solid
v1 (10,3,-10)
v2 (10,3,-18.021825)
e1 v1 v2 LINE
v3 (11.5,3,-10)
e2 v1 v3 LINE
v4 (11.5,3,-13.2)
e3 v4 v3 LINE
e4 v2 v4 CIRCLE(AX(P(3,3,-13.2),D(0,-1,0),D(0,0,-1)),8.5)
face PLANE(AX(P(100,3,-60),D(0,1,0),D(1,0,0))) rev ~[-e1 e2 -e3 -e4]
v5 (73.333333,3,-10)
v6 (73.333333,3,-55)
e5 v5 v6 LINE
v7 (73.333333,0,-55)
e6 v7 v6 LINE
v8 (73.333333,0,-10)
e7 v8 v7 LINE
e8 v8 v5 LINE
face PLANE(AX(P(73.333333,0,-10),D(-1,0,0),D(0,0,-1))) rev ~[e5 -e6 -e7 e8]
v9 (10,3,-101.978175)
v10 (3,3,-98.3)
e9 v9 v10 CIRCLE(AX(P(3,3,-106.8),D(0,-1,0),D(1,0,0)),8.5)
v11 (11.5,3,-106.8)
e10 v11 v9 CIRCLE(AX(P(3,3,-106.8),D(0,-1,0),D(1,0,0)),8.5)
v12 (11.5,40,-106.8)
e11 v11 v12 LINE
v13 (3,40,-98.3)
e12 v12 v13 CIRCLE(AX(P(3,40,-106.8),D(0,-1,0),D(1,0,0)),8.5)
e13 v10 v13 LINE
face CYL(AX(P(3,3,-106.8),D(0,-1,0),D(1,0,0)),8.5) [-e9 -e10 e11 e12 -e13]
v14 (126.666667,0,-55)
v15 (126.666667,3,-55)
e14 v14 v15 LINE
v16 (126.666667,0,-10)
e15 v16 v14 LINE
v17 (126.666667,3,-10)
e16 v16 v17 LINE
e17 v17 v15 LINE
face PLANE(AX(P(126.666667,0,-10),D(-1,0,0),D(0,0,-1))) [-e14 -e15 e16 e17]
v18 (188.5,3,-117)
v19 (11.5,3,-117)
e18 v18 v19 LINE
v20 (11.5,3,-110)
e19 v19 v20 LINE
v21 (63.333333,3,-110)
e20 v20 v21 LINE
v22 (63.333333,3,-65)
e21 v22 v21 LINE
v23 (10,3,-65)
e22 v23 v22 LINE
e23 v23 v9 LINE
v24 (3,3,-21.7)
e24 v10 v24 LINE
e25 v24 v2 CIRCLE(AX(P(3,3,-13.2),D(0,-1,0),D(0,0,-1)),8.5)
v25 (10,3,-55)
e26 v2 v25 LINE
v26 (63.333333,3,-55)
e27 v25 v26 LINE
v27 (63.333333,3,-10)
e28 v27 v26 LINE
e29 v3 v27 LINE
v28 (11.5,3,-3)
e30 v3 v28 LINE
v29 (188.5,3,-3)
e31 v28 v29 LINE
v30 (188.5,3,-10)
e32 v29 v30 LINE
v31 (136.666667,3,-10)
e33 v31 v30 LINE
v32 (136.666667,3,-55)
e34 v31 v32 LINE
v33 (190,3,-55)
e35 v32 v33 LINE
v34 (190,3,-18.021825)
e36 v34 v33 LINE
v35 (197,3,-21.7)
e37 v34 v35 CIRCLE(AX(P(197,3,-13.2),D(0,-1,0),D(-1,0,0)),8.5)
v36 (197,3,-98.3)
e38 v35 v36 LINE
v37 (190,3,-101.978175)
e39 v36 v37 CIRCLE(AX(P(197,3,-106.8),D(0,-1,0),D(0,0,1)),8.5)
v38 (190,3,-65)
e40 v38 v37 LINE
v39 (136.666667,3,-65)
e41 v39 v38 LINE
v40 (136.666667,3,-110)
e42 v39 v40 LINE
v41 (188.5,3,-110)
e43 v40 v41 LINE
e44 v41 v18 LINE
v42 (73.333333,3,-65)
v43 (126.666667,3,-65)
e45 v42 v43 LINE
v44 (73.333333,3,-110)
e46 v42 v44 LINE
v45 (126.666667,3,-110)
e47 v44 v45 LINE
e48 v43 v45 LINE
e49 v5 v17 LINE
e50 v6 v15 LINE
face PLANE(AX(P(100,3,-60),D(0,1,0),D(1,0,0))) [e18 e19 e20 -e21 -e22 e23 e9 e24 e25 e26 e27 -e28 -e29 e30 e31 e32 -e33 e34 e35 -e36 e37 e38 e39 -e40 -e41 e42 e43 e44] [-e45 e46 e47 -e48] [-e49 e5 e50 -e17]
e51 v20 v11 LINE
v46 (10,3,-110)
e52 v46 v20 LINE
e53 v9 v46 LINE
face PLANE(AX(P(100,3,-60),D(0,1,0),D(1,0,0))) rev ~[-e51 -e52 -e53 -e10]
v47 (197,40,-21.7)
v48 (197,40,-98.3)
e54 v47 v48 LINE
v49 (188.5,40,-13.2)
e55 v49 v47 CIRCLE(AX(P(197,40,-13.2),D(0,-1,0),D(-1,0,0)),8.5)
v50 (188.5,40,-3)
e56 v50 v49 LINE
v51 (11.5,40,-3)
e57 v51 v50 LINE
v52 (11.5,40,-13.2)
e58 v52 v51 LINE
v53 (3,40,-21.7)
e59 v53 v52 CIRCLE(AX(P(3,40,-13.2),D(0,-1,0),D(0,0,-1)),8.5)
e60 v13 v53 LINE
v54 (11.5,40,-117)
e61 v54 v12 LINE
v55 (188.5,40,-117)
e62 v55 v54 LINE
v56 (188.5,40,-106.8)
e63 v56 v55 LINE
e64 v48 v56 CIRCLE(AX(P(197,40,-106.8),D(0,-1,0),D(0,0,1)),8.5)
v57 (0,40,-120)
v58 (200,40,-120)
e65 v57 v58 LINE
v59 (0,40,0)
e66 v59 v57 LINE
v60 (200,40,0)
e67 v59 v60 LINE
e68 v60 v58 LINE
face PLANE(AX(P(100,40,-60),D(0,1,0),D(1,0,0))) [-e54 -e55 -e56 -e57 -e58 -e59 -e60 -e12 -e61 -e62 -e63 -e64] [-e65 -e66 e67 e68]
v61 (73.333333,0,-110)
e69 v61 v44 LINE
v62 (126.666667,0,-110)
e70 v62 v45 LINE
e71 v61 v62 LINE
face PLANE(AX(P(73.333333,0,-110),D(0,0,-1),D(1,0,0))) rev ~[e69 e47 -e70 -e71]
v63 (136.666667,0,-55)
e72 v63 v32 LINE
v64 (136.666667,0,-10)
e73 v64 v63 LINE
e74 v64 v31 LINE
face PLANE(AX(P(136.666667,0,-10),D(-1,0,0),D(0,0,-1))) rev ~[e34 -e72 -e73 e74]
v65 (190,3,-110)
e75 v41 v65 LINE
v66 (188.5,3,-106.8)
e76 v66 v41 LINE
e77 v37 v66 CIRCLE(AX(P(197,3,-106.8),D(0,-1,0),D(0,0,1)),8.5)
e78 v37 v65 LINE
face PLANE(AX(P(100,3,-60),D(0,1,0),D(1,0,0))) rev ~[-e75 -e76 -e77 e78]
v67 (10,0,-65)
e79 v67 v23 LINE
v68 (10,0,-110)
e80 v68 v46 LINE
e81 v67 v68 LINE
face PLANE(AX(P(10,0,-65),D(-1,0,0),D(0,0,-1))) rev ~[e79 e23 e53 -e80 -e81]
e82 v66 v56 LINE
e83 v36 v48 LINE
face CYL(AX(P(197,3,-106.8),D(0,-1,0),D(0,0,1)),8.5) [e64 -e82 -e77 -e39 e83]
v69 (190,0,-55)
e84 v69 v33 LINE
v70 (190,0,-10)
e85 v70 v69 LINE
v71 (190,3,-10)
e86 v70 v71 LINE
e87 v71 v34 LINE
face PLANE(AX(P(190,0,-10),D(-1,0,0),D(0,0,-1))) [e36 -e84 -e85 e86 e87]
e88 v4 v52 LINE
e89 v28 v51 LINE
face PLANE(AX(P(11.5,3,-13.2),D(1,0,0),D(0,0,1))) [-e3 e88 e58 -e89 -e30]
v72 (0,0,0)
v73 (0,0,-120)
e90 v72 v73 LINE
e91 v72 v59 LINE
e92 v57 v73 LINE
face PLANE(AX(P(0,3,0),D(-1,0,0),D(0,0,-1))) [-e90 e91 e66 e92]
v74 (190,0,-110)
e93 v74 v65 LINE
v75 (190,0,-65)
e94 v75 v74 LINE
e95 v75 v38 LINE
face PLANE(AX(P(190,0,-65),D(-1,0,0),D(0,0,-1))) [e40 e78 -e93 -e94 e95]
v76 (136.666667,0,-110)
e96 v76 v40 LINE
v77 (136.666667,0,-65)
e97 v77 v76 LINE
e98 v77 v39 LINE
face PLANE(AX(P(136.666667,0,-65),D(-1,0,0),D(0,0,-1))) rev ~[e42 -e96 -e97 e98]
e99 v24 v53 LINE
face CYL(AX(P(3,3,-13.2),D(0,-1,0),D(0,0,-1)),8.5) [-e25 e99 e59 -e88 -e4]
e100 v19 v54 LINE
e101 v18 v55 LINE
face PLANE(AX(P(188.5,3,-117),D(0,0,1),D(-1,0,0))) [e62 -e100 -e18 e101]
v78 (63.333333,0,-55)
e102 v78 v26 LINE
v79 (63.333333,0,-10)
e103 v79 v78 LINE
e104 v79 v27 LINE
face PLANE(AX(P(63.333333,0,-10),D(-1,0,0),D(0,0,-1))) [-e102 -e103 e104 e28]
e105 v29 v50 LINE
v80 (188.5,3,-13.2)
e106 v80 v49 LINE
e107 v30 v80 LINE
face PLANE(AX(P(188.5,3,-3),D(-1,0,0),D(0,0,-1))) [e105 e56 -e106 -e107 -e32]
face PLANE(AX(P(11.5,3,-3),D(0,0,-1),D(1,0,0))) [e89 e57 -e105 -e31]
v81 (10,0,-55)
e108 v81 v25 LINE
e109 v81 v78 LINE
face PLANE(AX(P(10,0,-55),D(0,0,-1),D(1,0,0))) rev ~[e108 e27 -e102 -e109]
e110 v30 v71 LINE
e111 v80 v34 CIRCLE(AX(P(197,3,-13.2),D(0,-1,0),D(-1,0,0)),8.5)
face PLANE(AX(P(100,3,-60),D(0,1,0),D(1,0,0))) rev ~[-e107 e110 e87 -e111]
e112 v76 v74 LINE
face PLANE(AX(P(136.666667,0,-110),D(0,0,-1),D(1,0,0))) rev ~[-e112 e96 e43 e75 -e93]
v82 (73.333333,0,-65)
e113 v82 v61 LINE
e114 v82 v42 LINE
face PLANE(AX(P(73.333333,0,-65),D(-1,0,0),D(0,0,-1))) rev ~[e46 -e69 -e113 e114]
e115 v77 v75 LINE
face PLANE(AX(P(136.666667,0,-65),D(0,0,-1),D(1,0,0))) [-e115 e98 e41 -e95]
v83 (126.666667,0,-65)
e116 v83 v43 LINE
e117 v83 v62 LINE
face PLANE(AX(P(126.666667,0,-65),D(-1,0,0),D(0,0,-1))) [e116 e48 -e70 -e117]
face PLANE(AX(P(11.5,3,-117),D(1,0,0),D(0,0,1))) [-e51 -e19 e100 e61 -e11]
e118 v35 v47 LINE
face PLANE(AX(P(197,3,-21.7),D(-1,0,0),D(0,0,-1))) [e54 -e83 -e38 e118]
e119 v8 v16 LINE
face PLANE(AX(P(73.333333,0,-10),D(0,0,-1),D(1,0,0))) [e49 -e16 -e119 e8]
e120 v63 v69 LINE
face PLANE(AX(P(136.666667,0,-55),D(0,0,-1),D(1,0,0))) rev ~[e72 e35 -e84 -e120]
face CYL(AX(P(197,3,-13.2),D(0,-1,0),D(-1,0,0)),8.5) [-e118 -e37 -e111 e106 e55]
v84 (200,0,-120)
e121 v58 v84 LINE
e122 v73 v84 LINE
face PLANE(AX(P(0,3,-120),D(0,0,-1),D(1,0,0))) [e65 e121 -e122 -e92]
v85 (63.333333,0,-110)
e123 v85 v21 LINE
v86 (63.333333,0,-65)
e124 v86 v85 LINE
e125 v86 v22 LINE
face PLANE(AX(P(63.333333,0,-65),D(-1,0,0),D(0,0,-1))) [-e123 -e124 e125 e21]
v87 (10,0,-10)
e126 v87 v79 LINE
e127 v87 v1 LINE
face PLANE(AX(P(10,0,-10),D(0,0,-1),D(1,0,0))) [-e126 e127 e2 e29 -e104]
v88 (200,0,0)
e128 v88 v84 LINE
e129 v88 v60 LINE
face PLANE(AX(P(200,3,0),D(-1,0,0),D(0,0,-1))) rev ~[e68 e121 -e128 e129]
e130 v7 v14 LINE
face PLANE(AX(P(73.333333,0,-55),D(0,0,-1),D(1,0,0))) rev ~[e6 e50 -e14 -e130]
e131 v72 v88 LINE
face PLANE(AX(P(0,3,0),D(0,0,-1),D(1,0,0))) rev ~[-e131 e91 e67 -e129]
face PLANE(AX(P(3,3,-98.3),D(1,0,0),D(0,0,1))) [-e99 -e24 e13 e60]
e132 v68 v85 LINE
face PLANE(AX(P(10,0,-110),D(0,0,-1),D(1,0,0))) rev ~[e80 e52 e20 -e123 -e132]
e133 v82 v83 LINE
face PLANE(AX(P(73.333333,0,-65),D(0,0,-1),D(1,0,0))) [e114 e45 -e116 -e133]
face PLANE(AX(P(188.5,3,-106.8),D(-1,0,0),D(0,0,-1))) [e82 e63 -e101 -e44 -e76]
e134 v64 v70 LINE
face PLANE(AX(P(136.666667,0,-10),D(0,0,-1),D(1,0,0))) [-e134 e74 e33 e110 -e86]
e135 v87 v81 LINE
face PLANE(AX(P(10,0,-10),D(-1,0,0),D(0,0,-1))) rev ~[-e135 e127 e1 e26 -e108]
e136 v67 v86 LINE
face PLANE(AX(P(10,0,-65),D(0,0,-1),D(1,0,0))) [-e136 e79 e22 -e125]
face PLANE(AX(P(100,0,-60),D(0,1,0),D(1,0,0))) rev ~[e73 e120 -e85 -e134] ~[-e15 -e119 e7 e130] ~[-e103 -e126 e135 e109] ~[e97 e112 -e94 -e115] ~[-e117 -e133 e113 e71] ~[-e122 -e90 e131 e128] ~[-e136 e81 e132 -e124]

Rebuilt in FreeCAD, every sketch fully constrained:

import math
import FreeCAD as App
import Part
import Sketcher

doc = App.newDocument("Part")
params = doc.addObject("Spreadsheet::Sheet", "Params")
for row, (alias, value) in enumerate([
    ("sketch1_width", "200 mm"),
    ("sketch1_height", "120 mm"),
    ("sketch1_height2", "45 mm"),
    ("pad1_length", "3 mm"),
    ("sketch2_radius", "8.5 mm"),
    ("sketch2_width", "200 mm"),
    ("sketch2_width2", "177 mm"),
    ("sketch2_height", "120 mm"),
    ("sketch2_height2", "76.6 mm"),
    ("pad2_length", "37 mm"),
], start=1):
    params.set(f"A{row}", alias)
    params.set(f"B{row}", "=" + value)
    params.setAlias(f"B{row}", alias)

body = doc.addObject("PartDesign::Body", "Body")

# Sketch on XZ plane
sketch1 = body.newObject("Sketcher::SketchObject", "Sketch")
sketch1.AttachmentSupport = (doc.getObject("XZ_Plane"), [""])
sketch1.MapMode = "FlatFace"
sketch1.addGeometry([
    Part.LineSegment(App.Vector(0, -120, 0), App.Vector(0, 0, 0)),  # 0
    Part.LineSegment(App.Vector(0, 0, 0), App.Vector(200, 0, 0)),  # 1
    Part.LineSegment(App.Vector(200, 0, 0), App.Vector(200, -120, 0)),  # 2
    Part.LineSegment(App.Vector(200, -120, 0), App.Vector(0, -120, 0)),  # 3
    Part.LineSegment(App.Vector(63.333333, -10, 0), App.Vector(10, -10, 0)),  # 4
    Part.LineSegment(App.Vector(10, -10, 0), App.Vector(10, -55, 0)),  # 5
    Part.LineSegment(App.Vector(10, -55, 0), App.Vector(63.333333, -55, 0)),  # 6
    Part.LineSegment(App.Vector(63.333333, -55, 0), App.Vector(63.333333, -10, 0)),  # 7
    Part.LineSegment(App.Vector(126.666667, -10, 0), App.Vector(73.333333, -10, 0)),  # 8
    Part.LineSegment(App.Vector(73.333333, -10, 0), App.Vector(73.333333, -55, 0)),  # 9
    Part.LineSegment(App.Vector(73.333333, -55, 0), App.Vector(126.666667, -55, 0)),  # 10
    Part.LineSegment(App.Vector(126.666667, -55, 0), App.Vector(126.666667, -10, 0)),  # 11
    Part.LineSegment(App.Vector(190, -10, 0), App.Vector(136.666667, -10, 0)),  # 12
    Part.LineSegment(App.Vector(136.666667, -10, 0), App.Vector(136.666667, -55, 0)),  # 13
    Part.LineSegment(App.Vector(136.666667, -55, 0), App.Vector(190, -55, 0)),  # 14
    Part.LineSegment(App.Vector(190, -55, 0), App.Vector(190, -10, 0)),  # 15
    Part.LineSegment(App.Vector(63.333333, -65, 0), App.Vector(10, -65, 0)),  # 16
    Part.LineSegment(App.Vector(10, -65, 0), App.Vector(10, -110, 0)),  # 17
    Part.LineSegment(App.Vector(10, -110, 0), App.Vector(63.333333, -110, 0)),  # 18
    Part.LineSegment(App.Vector(63.333333, -110, 0), App.Vector(63.333333, -65, 0)),  # 19
    Part.LineSegment(App.Vector(126.666667, -65, 0), App.Vector(73.333333, -65, 0)),  # 20
    Part.LineSegment(App.Vector(73.333333, -65, 0), App.Vector(73.333333, -110, 0)),  # 21
    Part.LineSegment(App.Vector(73.333333, -110, 0), App.Vector(126.666667, -110, 0)),  # 22
    Part.LineSegment(App.Vector(126.666667, -110, 0), App.Vector(126.666667, -65, 0)),  # 23
    Part.LineSegment(App.Vector(190, -65, 0), App.Vector(136.666667, -65, 0)),  # 24
    Part.LineSegment(App.Vector(136.666667, -65, 0), App.Vector(136.666667, -110, 0)),  # 25
    Part.LineSegment(App.Vector(136.666667, -110, 0), App.Vector(190, -110, 0)),  # 26
    Part.LineSegment(App.Vector(190, -110, 0), App.Vector(190, -65, 0)),  # 27
], False)
sketch1.addConstraint([
    Sketcher.Constraint("Coincident", 0, 2, 1, 1),
    Sketcher.Constraint("Coincident", 1, 2, 2, 1),
    Sketcher.Constraint("Coincident", 2, 2, 3, 1),
    Sketcher.Constraint("Coincident", 3, 2, 0, 1),
    Sketcher.Constraint("Coincident", 4, 2, 5, 1),
    Sketcher.Constraint("Coincident", 5, 2, 6, 1),
    Sketcher.Constraint("Coincident", 6, 2, 7, 1),
    Sketcher.Constraint("Coincident", 7, 2, 4, 1),
    Sketcher.Constraint("Coincident", 8, 2, 9, 1),
    Sketcher.Constraint("Coincident", 9, 2, 10, 1),
    Sketcher.Constraint("Coincident", 10, 2, 11, 1),
    Sketcher.Constraint("Coincident", 11, 2, 8, 1),
    Sketcher.Constraint("Coincident", 12, 2, 13, 1),
    Sketcher.Constraint("Coincident", 13, 2, 14, 1),
    Sketcher.Constraint("Coincident", 14, 2, 15, 1),
    Sketcher.Constraint("Coincident", 15, 2, 12, 1),
    Sketcher.Constraint("Coincident", 16, 2, 17, 1),
    Sketcher.Constraint("Coincident", 17, 2, 18, 1),
    Sketcher.Constraint("Coincident", 18, 2, 19, 1),
    Sketcher.Constraint("Coincident", 19, 2, 16, 1),
    Sketcher.Constraint("Coincident", 20, 2, 21, 1),
    Sketcher.Constraint("Coincident", 21, 2, 22, 1),
    Sketcher.Constraint("Coincident", 22, 2, 23, 1),
    Sketcher.Constraint("Coincident", 23, 2, 20, 1),
    Sketcher.Constraint("Coincident", 24, 2, 25, 1),
    Sketcher.Constraint("Coincident", 25, 2, 26, 1),
    Sketcher.Constraint("Coincident", 26, 2, 27, 1),
    Sketcher.Constraint("Coincident", 27, 2, 24, 1),
    Sketcher.Constraint("Vertical", 0),
    Sketcher.Constraint("Horizontal", 1),
    Sketcher.Constraint("Vertical", 2),
    Sketcher.Constraint("Horizontal", 3),
    Sketcher.Constraint("Horizontal", 4),
    Sketcher.Constraint("Vertical", 5),
    Sketcher.Constraint("Horizontal", 6),
    Sketcher.Constraint("Vertical", 7),
    Sketcher.Constraint("Horizontal", 8),
    Sketcher.Constraint("Vertical", 9),
    Sketcher.Constraint("Horizontal", 10),
    Sketcher.Constraint("Vertical", 11),
    Sketcher.Constraint("Horizontal", 12),
    Sketcher.Constraint("Vertical", 13),
    Sketcher.Constraint("Horizontal", 14),
    Sketcher.Constraint("Vertical", 15),
    Sketcher.Constraint("Horizontal", 16),
    Sketcher.Constraint("Vertical", 17),
    Sketcher.Constraint("Horizontal", 18),
    Sketcher.Constraint("Vertical", 19),
    Sketcher.Constraint("Horizontal", 20),
    Sketcher.Constraint("Vertical", 21),
    Sketcher.Constraint("Horizontal", 22),
    Sketcher.Constraint("Vertical", 23),
    Sketcher.Constraint("Horizontal", 24),
    Sketcher.Constraint("Vertical", 25),
    Sketcher.Constraint("Horizontal", 26),
    Sketcher.Constraint("Vertical", 27),
    Sketcher.Constraint("Coincident", 0, 2, -1, 1),
    Sketcher.Constraint("Horizontal", 7, 2, 8, 2),
    Sketcher.Constraint("Horizontal", 6, 2, 9, 2),
    Sketcher.Constraint("Horizontal", 11, 2, 12, 2),
    Sketcher.Constraint("Horizontal", 10, 2, 13, 2),
    Sketcher.Constraint("Horizontal", 19, 2, 20, 2),
    Sketcher.Constraint("Horizontal", 18, 2, 21, 2),
    Sketcher.Constraint("Horizontal", 23, 2, 24, 2),
    Sketcher.Constraint("Horizontal", 22, 2, 25, 2),
    Sketcher.Constraint("Vertical", 5, 2, 16, 2),
    Sketcher.Constraint("Vertical", 7, 2, 18, 2),
    Sketcher.Constraint("Vertical", 9, 2, 20, 2),
    Sketcher.Constraint("Vertical", 11, 2, 22, 2),
    Sketcher.Constraint("Vertical", 13, 2, 24, 2),
    Sketcher.Constraint("Vertical", 15, 2, 26, 2),
    Sketcher.Constraint("Equal", 6, 8),
    Sketcher.Constraint("Equal", 10, 12),
    Sketcher.Constraint("Equal", 15, 17),
    Sketcher.Constraint("DistanceX", 1, 1, 1, 2, 200.0),
    Sketcher.Constraint("DistanceY", 0, 1, 0, 2, 120.0),
    Sketcher.Constraint("DistanceY", 5, 2, 5, 1, 45.0),
    Sketcher.Constraint("DistanceX", -1, 1, 4, 2, 10.0),
    Sketcher.Constraint("DistanceY", 4, 2, -1, 1, 10.0),
    Sketcher.Constraint("DistanceX", -1, 1, 14, 2, 190.0),
    Sketcher.Constraint("DistanceY", 16, 2, -1, 1, 65.0),
    Sketcher.Constraint("DistanceX", 7, 2, 8, 2, 10.0),
    Sketcher.Constraint("DistanceX", 11, 2, 12, 2, 10.0),
])
sketch1.setExpression("Constraints[74]", "Params.sketch1_width")
sketch1.setExpression("Constraints[75]", "Params.sketch1_height")
sketch1.setExpression("Constraints[76]", "Params.sketch1_height2")
pad1 = body.newObject("PartDesign::Pad", "Pad")
pad1.Profile = sketch1
pad1.setExpression("Length", "Params.pad1_length")
pad1.Reversed = True

# Sketch on XZ plane
sketch2 = body.newObject("Sketcher::SketchObject", "Sketch001")
sketch2.AttachmentSupport = (doc.getObject("XZ_Plane"), [""])
sketch2.MapMode = "FlatFace"
sketch2.AttachmentOffset = App.Placement(App.Vector(0, 0, -3), App.Rotation())
sketch2.addGeometry([
    Part.LineSegment(App.Vector(0, -120, 0), App.Vector(0, 0, 0)),  # 0
    Part.LineSegment(App.Vector(0, 0, 0), App.Vector(200, 0, 0)),  # 1
    Part.LineSegment(App.Vector(200, 0, 0), App.Vector(200, -120, 0)),  # 2
    Part.LineSegment(App.Vector(200, -120, 0), App.Vector(0, -120, 0)),  # 3
    Part.LineSegment(App.Vector(3, -21.7, 0), App.Vector(3, -98.3, 0)),  # 4
    Part.ArcOfCircle(Part.Circle(App.Vector(3, -106.8, 0), App.Vector(0, 0, 1), 8.5), math.radians(0), math.radians(90)),  # 5
    Part.LineSegment(App.Vector(11.5, -106.8, 0), App.Vector(11.5, -117, 0)),  # 6
    Part.LineSegment(App.Vector(11.5, -117, 0), App.Vector(188.5, -117, 0)),  # 7
    Part.LineSegment(App.Vector(188.5, -117, 0), App.Vector(188.5, -106.8, 0)),  # 8
    Part.ArcOfCircle(Part.Circle(App.Vector(197, -106.8, 0), App.Vector(0, 0, 1), 8.5), math.radians(90), math.radians(180)),  # 9
    Part.LineSegment(App.Vector(197, -98.3, 0), App.Vector(197, -21.7, 0)),  # 10
    Part.ArcOfCircle(Part.Circle(App.Vector(197, -13.2, 0), App.Vector(0, 0, 1), 8.5), math.radians(180), math.radians(270)),  # 11
    Part.LineSegment(App.Vector(188.5, -13.2, 0), App.Vector(188.5, -3, 0)),  # 12
    Part.LineSegment(App.Vector(188.5, -3, 0), App.Vector(11.5, -3, 0)),  # 13
    Part.LineSegment(App.Vector(11.5, -3, 0), App.Vector(11.5, -13.2, 0)),  # 14
    Part.ArcOfCircle(Part.Circle(App.Vector(3, -13.2, 0), App.Vector(0, 0, 1), 8.5), math.radians(-90), math.radians(0)),  # 15
], False)
sketch2.addConstraint([
    Sketcher.Constraint("Coincident", 0, 2, 1, 1),
    Sketcher.Constraint("Coincident", 1, 2, 2, 1),
    Sketcher.Constraint("Coincident", 2, 2, 3, 1),
    Sketcher.Constraint("Coincident", 3, 2, 0, 1),
    Sketcher.Constraint("Coincident", 4, 2, 5, 2),
    Sketcher.Constraint("Tangent", 5, 1, 6, 1),
    Sketcher.Constraint("Coincident", 6, 2, 7, 1),
    Sketcher.Constraint("Coincident", 7, 2, 8, 1),
    Sketcher.Constraint("Tangent", 8, 2, 9, 2),
    Sketcher.Constraint("Coincident", 9, 1, 10, 1),
    Sketcher.Constraint("Coincident", 10, 2, 11, 2),
    Sketcher.Constraint("Tangent", 11, 1, 12, 1),
    Sketcher.Constraint("Coincident", 12, 2, 13, 1),
    Sketcher.Constraint("Coincident", 13, 2, 14, 1),
    Sketcher.Constraint("Tangent", 14, 2, 15, 2),
    Sketcher.Constraint("Coincident", 15, 1, 4, 1),
    Sketcher.Constraint("Vertical", 0),
    Sketcher.Constraint("Horizontal", 1),
    Sketcher.Constraint("Vertical", 2),
    Sketcher.Constraint("Horizontal", 3),
    Sketcher.Constraint("Vertical", 4),
    Sketcher.Constraint("Vertical", 6),
    Sketcher.Constraint("Horizontal", 7),
    Sketcher.Constraint("Vertical", 8),
    Sketcher.Constraint("Vertical", 10),
    Sketcher.Constraint("Vertical", 12),
    Sketcher.Constraint("Horizontal", 13),
    Sketcher.Constraint("Vertical", 14),
    Sketcher.Constraint("Coincident", 0, 2, -1, 1),
    Sketcher.Constraint("Equal", 5, 9),
    Sketcher.Constraint("Equal", 9, 11),
    Sketcher.Constraint("Equal", 11, 15),
    Sketcher.Constraint("Horizontal", 5, 3, 9, 3),
    Sketcher.Constraint("Horizontal", 11, 3, 15, 3),
    Sketcher.Constraint("Vertical", 9, 3, 11, 3),
    Sketcher.Constraint("Vertical", 5, 3, 15, 3),
    Sketcher.Constraint("Vertical", 15, 3, 4, 2),
    Sketcher.Constraint("Vertical", 11, 3, 9, 1),
    Sketcher.Constraint("Equal", 8, 12),
    Sketcher.Constraint("Radius", 5, 8.5),
    Sketcher.Constraint("DistanceX", 1, 1, 1, 2, 200.0),
    Sketcher.Constraint("DistanceX", 7, 1, 7, 2, 177.0),
    Sketcher.Constraint("DistanceY", 0, 1, 0, 2, 120.0),
    Sketcher.Constraint("DistanceY", 4, 2, 4, 1, 76.6),
    Sketcher.Constraint("DistanceY", 6, 2, 6, 1, 10.2),
    Sketcher.Constraint("DistanceX", -1, 1, 5, 3, 3.0),
    Sketcher.Constraint("DistanceY", 6, 2, -1, 1, 117.0),
])
sketch2.setExpression("Constraints[39]", "Params.sketch2_radius")
sketch2.setExpression("Constraints[40]", "Params.sketch2_width")
sketch2.setExpression("Constraints[41]", "Params.sketch2_width2")
sketch2.setExpression("Constraints[42]", "Params.sketch2_height")
sketch2.setExpression("Constraints[43]", "Params.sketch2_height2")
pad2 = body.newObject("PartDesign::Pad", "Pad001")
pad2.Profile = sketch2
pad2.setExpression("Length", "Params.pad2_length")
pad2.Reversed = True

doc.recompute()
